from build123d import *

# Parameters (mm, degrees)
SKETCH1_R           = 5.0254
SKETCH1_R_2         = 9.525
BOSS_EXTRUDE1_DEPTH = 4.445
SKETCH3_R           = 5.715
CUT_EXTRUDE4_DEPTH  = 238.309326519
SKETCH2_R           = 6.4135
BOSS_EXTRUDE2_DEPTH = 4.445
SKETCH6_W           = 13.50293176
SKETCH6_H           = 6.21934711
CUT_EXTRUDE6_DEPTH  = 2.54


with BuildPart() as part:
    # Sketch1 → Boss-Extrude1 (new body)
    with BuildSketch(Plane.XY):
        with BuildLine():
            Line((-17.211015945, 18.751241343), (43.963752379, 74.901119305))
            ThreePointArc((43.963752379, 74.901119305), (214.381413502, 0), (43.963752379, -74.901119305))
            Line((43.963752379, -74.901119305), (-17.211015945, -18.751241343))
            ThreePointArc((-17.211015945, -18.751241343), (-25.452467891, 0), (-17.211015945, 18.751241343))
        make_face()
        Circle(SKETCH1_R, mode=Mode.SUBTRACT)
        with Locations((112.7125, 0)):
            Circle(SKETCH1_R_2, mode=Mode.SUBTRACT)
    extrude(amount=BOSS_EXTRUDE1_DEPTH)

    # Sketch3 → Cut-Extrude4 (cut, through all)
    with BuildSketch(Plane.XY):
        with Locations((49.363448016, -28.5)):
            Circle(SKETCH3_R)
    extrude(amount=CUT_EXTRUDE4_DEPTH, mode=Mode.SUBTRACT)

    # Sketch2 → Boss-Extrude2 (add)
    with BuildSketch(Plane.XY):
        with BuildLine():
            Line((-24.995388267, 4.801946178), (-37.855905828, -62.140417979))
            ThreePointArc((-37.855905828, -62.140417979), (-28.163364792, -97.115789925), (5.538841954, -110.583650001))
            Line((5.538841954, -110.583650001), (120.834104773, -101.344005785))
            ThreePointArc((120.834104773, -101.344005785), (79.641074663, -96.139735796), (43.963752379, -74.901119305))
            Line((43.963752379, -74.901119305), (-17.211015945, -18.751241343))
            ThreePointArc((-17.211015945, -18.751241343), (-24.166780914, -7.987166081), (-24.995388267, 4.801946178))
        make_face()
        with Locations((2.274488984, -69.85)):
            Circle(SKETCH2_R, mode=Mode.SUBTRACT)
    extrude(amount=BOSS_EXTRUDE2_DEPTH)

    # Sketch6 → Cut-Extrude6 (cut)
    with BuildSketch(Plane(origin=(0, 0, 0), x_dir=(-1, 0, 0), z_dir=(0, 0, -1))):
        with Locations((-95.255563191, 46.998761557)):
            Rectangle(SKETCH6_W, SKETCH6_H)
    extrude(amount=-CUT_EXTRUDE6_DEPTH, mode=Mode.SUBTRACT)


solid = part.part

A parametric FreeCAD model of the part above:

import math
import FreeCAD as App
import Part
import Sketcher

V = App.Vector
Q = App.Units.Quantity


def add_polygon(sketch, points):
    """Adds a closed chain of lines whose ends are joined by coincident constraints."""
    first, n = sketch.GeometryCount, len(points)
    for a, b in zip(points, points[1:] + points[:1]):
        sketch.addGeometry(Part.LineSegment(App.Vector(*a, 0), App.Vector(*b, 0)), False)
    for i in range(n):
        sketch.addConstraint(Sketcher.Constraint("Coincident", first + i, 2, first + (i + 1) % n, 1))

doc = App.newDocument("Part")
body = doc.addObject("PartDesign::Body", "Body")

# Sketch on XY plane
sketch1 = body.newObject("Sketcher::SketchObject", "Sketch")
sketch1.AttachmentSupport = (doc.getObject("XY_Plane"), [""])
sketch1.MapMode = "FlatFace"
sketch1.addGeometry([
    Part.LineSegment(V(43.963752, 74.901119, 0), V(-17.211016, 18.751241, 0)),  # 0
    Part.ArcOfCircle(Part.Circle(V(0, 0, 0), V(0, 0, 1), 25.452468), math.radians(132.547581), math.radians(227.452419)),  # 1
    Part.LineSegment(V(-17.211016, -18.751241, 0), V(43.963752, -74.901119, 0)),  # 2
    Part.ArcOfCircle(Part.Circle(V(112.7125, 0, 0), V(0, 0, 1), 101.668914), math.radians(-132.547581), math.radians(132.547581)),  # 3
    Part.Circle(V(112.7125, 0, 0), V(0, 0, 1), 9.525),  # 4
    Part.Circle(V(0, 0, 0), V(0, 0, 1), 5.0254),  # 5
], False)
sketch1.addConstraint([
    Sketcher.Constraint("Tangent", 0, 2, 1, 1),
    Sketcher.Constraint("Tangent", 1, 2, 2, 1),
    Sketcher.Constraint("Tangent", 2, 2, 3, 1),
    Sketcher.Constraint("Tangent", 3, 2, 0, 1),
    Sketcher.Constraint("Coincident", 1, 3, -1, 1),
    Sketcher.Constraint("Coincident", 5, 3, -1, 1),
    Sketcher.Constraint("Coincident", 4, 3, 3, 3),
    Sketcher.Constraint("PointOnObject", 3, 3, -1),
    Sketcher.Constraint("Diameter", 4, Q("0.75 in")),
    Sketcher.Constraint("Diameter", 5, 10.0508),
    Sketcher.Constraint("DistanceX", -1, 1, 3, 3, Q("4.4375 in")),
    Sketcher.Constraint("Radius", 1, 25.452468),
    Sketcher.Constraint("Radius", 3, 101.668914),
])
pad1 = body.newObject("PartDesign::Pad", "Pad")
pad1.Profile = sketch1
pad1.Length = Q("0.175 in")

# Sketch on XY plane
sketch2 = body.newObject("Sketcher::SketchObject", "Sketch001")
sketch2.AttachmentSupport = (doc.getObject("XY_Plane"), [""])
sketch2.MapMode = "FlatFace"
sketch2.addGeometry(Part.Circle(V(49.363448, -28.5, 0), V(0, 0, 1), 5.715), False)
sketch2.addConstraint([
    Sketcher.Constraint("Diameter", 0, Q("0.45 in")),
    Sketcher.Constraint("DistanceY", 0, 3, -1, 1, 28.5),
    Sketcher.Constraint("DistanceX", -1, 1, 0, 3, 49.363448),
])
pocket1 = body.newObject("PartDesign::Pocket", "Pocket")
pocket1.Profile = sketch2
pocket1.Type = "ThroughAll"
pocket1.Reversed = True

# Sketch on XY plane
sketch3 = body.newObject("Sketcher::SketchObject", "Sketch002")
sketch3.AttachmentSupport = (doc.getObject("XY_Plane"), [""])
sketch3.MapMode = "FlatFace"
sketch3.addGeometry([
    Part.LineSegment(V(-24.995388, 4.801946, 0), V(-37.855906, -62.140418, 0)),  # 0
    Part.ArcOfCircle(Part.Circle(V(2.274489, -69.85, 0), V(0, 0, 1), 40.864242), math.radians(169.125215), math.radians(274.581833)),  # 1
    Part.LineSegment(V(5.538842, -110.58365, 0), V(120.834105, -101.344006, 0)),  # 2
    Part.ArcOfCircle(Part.Circle(V(112.7125, 0, 0), V(0, 0, 1), 101.668913), math.radians(-132.547581), math.radians(-85.418167)),  # 3
    Part.LineSegment(V(43.963752, -74.901119, 0), V(-17.211016, -18.751241, 0)),  # 4
    Part.ArcOfCircle(Part.Circle(V(0, 0, 0), V(0, 0, 1), 25.452468), math.radians(169.125215), math.radians(227.452419)),  # 5
    Part.Circle(V(2.274489, -69.85, 0), V(0, 0, 1), 6.4135),  # 6
], False)
sketch3.addConstraint([
    Sketcher.Constraint("Tangent", 0, 2, 1, 1),
    Sketcher.Constraint("Tangent", 1, 2, 2, 1),
    Sketcher.Constraint("Tangent", 2, 2, 3, 2),
    Sketcher.Constraint("Tangent", 3, 1, 4, 1),
    Sketcher.Constraint("Tangent", 4, 2, 5, 2),
    Sketcher.Constraint("Tangent", 5, 1, 0, 1),
    Sketcher.Constraint("Coincident", 5, 3, -1, 1),
    Sketcher.Constraint("Coincident", 6, 3, 1, 3),
    Sketcher.Constraint("PointOnObject", 3, 3, -1),
    Sketcher.Constraint("Diameter", 6, Q("0.505 in")),
    Sketcher.Constraint("DistanceY", 1, 3, -1, 1, Q("2.75 in")),
    Sketcher.Constraint("DistanceX", -1, 1, 3, 3, Q("4.4375 in")),
    Sketcher.Constraint("Radius", 1, 40.864242),
    Sketcher.Constraint("Radius", 3, 101.668913),
    Sketcher.Constraint("Radius", 5, 25.452468),
    Sketcher.Constraint("Distance", 2, 115.664898),
])
pad2 = body.newObject("PartDesign::Pad", "Pad001")
pad2.Profile = sketch3
pad2.Length = Q("0.175 in")

# Sketch on XY plane
sketch4 = body.newObject("Sketcher::SketchObject", "Sketch003")
sketch4.AttachmentSupport = (doc.getObject("XY_Plane"), [""])
sketch4.MapMode = "FlatFace"
add_polygon(sketch4, [(102.007029, 50.108435), (102.007029, 43.889088), (88.504097, 43.889088), (88.504097, 50.108435)])  # lines 0-3
sketch4.addConstraint([
    Sketcher.Constraint("Vertical", 0),
    Sketcher.Constraint("Horizontal", 1),
    Sketcher.Constraint("Vertical", 2),
    Sketcher.Constraint("Horizontal", 3),
    Sketcher.Constraint("DistanceX", 1, 2, 1, 1, 13.502932),
    Sketcher.Constraint("DistanceY", 0, 2, 0, 1, 6.219347),
    Sketcher.Constraint("DistanceX", -1, 1, 0, 2, 102.007029),
    Sketcher.Constraint("DistanceY", -1, 1, 0, 2, 43.889088),
])
pocket2 = body.newObject("PartDesign::Pocket", "Pocket001")
pocket2.Profile = sketch4
pocket2.Length = Q("0.1 in")
pocket2.Reversed = True

doc.recompute()
